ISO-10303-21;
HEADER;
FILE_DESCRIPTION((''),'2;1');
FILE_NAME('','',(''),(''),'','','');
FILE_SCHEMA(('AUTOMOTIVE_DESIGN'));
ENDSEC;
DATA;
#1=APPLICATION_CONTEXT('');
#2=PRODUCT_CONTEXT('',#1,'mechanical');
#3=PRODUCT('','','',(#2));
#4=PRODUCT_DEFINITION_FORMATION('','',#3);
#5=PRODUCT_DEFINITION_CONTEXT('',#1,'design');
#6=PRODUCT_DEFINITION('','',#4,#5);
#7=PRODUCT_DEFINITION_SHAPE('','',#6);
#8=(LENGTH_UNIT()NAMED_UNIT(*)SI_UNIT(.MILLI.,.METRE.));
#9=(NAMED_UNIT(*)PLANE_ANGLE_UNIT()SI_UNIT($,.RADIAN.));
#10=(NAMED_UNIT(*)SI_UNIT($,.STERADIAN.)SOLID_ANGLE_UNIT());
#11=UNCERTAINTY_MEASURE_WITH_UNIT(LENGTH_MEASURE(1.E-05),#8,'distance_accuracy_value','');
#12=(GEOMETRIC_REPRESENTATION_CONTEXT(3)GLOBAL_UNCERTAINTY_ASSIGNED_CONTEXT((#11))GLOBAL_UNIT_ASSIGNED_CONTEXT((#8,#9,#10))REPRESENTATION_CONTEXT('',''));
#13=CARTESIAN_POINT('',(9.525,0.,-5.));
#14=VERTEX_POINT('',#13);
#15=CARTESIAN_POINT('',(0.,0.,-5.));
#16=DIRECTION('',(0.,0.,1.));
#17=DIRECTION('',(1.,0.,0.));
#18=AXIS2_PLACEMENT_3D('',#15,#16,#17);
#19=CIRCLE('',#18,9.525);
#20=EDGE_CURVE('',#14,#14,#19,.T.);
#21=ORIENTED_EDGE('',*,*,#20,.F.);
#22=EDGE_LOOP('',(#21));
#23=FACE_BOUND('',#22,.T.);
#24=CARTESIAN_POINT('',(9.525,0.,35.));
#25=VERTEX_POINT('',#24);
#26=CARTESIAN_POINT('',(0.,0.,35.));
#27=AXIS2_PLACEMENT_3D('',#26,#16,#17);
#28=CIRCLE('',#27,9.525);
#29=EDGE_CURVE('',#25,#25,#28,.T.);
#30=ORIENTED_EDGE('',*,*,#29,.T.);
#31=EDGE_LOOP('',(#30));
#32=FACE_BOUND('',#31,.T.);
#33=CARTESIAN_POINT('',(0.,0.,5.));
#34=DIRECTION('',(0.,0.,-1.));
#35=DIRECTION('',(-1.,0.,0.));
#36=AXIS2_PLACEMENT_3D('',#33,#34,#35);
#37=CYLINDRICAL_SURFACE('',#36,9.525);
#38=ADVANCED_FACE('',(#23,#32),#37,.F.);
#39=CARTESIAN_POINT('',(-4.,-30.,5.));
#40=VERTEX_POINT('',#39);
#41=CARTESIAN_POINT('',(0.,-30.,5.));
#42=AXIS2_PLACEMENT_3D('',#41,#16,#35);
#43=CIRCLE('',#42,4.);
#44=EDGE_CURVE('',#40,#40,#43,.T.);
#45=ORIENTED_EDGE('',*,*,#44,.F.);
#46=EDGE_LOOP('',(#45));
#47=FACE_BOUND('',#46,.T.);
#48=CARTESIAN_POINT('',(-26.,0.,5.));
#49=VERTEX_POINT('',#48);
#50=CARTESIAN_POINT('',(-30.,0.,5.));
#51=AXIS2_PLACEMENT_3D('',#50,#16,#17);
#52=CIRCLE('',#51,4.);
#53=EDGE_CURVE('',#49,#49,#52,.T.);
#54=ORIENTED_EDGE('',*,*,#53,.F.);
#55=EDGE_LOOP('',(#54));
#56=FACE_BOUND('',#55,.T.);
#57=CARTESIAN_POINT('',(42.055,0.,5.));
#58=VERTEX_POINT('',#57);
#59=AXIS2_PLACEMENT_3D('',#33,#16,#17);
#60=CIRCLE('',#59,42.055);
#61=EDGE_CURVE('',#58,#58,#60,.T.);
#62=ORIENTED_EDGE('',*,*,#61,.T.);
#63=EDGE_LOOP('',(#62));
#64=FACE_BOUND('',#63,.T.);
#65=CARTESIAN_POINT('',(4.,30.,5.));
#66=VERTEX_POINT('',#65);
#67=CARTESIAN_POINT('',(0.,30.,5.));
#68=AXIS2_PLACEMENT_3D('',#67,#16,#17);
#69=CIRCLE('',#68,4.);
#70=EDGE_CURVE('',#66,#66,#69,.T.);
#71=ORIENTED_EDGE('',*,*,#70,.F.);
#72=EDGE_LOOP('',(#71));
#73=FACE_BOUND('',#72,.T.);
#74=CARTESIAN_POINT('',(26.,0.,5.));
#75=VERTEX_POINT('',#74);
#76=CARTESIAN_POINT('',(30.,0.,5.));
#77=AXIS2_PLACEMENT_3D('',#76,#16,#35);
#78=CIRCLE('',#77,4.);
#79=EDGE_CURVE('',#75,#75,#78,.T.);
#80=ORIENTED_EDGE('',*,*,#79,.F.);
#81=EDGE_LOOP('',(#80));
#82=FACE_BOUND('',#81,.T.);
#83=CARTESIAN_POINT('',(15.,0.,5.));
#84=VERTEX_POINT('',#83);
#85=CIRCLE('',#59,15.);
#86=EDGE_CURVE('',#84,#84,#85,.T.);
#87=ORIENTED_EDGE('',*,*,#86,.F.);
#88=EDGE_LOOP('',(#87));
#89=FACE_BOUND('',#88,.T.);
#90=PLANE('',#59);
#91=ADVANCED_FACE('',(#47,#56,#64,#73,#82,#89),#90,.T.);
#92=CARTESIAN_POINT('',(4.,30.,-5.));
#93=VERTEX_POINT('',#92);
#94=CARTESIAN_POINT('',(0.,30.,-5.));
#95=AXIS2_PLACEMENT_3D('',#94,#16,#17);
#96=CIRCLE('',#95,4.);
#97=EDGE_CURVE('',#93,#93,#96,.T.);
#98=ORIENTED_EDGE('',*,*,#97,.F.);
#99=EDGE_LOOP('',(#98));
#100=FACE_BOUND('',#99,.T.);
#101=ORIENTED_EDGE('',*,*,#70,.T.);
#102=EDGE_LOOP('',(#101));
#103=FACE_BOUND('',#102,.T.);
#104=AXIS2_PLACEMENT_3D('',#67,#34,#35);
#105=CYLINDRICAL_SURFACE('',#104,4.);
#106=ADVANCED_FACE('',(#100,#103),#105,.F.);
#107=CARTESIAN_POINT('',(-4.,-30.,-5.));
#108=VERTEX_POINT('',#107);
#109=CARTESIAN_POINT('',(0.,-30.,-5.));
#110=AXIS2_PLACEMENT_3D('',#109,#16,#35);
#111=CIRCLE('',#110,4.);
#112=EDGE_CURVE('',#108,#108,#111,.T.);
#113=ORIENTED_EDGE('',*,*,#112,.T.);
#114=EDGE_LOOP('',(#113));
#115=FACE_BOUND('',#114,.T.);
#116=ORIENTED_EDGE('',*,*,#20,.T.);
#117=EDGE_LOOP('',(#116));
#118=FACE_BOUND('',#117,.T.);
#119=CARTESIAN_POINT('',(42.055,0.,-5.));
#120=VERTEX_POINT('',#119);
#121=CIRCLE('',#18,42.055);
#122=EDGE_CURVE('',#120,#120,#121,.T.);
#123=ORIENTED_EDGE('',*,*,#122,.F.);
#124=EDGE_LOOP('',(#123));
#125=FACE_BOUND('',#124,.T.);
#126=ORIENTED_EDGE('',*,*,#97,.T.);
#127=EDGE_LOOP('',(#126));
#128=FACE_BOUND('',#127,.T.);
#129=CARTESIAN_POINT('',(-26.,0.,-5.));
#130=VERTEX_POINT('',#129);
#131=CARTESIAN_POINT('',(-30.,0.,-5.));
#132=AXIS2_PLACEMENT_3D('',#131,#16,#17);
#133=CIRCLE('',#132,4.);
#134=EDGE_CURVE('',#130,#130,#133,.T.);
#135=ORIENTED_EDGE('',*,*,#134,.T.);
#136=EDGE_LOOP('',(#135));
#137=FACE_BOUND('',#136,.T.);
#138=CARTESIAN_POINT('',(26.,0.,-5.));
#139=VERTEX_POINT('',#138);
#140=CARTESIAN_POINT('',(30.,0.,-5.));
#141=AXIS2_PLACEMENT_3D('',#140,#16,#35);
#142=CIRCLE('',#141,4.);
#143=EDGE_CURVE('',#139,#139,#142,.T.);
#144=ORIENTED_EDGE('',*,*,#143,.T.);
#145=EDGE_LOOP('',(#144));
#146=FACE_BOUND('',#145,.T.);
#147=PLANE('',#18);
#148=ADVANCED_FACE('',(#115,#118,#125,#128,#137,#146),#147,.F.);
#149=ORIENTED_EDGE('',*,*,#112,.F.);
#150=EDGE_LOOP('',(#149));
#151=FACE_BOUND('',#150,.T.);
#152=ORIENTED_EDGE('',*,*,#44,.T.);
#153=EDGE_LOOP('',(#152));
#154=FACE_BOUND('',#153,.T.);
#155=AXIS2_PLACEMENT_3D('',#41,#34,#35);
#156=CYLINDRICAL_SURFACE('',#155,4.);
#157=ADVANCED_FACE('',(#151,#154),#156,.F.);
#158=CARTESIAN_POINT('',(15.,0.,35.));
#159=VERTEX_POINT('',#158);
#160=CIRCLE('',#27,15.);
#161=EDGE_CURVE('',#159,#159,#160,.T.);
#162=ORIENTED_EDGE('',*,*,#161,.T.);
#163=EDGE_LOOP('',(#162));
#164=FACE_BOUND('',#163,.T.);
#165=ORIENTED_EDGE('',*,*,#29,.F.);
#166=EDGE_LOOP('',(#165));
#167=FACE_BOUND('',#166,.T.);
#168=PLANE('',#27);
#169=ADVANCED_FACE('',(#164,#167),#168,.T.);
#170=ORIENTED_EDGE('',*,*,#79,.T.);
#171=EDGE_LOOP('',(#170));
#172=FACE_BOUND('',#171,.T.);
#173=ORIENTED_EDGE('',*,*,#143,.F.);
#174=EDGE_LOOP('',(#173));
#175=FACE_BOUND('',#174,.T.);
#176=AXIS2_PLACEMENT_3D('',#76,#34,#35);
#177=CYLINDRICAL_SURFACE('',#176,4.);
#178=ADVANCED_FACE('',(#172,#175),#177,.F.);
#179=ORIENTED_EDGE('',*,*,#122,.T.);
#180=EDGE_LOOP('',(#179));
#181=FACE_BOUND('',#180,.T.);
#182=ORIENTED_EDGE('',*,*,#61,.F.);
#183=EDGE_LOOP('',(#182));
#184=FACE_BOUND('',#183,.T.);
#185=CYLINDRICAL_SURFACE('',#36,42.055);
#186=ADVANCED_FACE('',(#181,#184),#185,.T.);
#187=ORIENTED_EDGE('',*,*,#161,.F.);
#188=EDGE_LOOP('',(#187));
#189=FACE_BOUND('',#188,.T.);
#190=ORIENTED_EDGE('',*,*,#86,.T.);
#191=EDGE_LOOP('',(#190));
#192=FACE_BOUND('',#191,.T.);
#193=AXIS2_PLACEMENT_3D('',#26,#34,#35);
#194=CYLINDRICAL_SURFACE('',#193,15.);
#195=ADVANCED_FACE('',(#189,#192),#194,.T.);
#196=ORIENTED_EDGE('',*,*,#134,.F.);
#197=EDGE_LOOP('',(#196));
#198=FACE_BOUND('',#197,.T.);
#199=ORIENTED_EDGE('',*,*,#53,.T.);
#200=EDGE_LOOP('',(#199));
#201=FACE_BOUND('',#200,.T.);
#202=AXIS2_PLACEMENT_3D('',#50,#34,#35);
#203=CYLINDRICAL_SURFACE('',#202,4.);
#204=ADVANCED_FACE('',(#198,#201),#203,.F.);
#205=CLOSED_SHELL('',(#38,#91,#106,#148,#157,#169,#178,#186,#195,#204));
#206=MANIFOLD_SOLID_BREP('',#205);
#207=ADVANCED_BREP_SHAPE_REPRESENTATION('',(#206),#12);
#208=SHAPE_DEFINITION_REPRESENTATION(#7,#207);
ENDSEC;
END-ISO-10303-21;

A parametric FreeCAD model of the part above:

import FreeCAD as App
import Part
import Sketcher
Q = App.Units.Quantity

doc = App.newDocument("Part")
body = doc.addObject("PartDesign::Body", "Body")

# Sketch on XY plane
sketch1 = body.newObject("Sketcher::SketchObject", "Sketch")
sketch1.AttachmentSupport = (doc.getObject("XY_Plane"), [""])
sketch1.MapMode = "FlatFace"
sketch1.addGeometry([
    Part.Circle(App.Vector(0, 0, 0), App.Vector(0, 0, 1), 42.055),  # 0
    Part.Circle(App.Vector(0, -30, 0), App.Vector(0, 0, 1), 4),  # 1
    Part.Circle(App.Vector(-30, 0, 0), App.Vector(0, 0, 1), 4),  # 2
    Part.Circle(App.Vector(0, 0, 0), App.Vector(0, 0, 1), 9.525),  # 3
    Part.Circle(App.Vector(30, 0, 0), App.Vector(0, 0, 1), 4),  # 4
    Part.Circle(App.Vector(0, 30, 0), App.Vector(0, 0, 1), 4),  # 5
], False)
sketch1.addConstraint([
    Sketcher.Constraint("Coincident", 0, 3, -1, 1),
    Sketcher.Constraint("Coincident", 3, 3, -1, 1),
    Sketcher.Constraint("Equal", 1, 2),
    Sketcher.Constraint("Equal", 2, 4),
    Sketcher.Constraint("Equal", 4, 5),
    Sketcher.Constraint("Symmetric", 2, 3, 4, 3, -1, 1),
    Sketcher.Constraint("Symmetric", 1, 3, 5, 3, -1, 1),
    Sketcher.Constraint("PointOnObject", 1, 3, -2),
    Sketcher.Constraint("PointOnObject", 2, 3, -1),
    Sketcher.Constraint("Diameter", 1, Q("8 mm")),
    Sketcher.Constraint("Diameter", 0, Q("84.11 mm")),
    Sketcher.Constraint("Diameter", 3, Q("19.05 mm")),
    Sketcher.Constraint("DistanceY", 1, 3, -1, 1, Q("30 mm")),
    Sketcher.Constraint("DistanceX", 2, 3, -1, 1, Q("30 mm")),
])
pad1 = body.newObject("PartDesign::Pad", "Pad")
pad1.Profile = sketch1
pad1.Length = 10
pad1.Midplane = True

# Sketch on XY plane
sketch2 = body.newObject("Sketcher::SketchObject", "Sketch001")
sketch2.AttachmentSupport = (doc.getObject("XY_Plane"), [""])
sketch2.MapMode = "FlatFace"
sketch2.AttachmentOffset = App.Placement(App.Vector(0, 0, 5), App.Rotation())
sketch2.addGeometry(Part.Circle(App.Vector(0, 0, 0), App.Vector(0, 0, 1), 15), False)
sketch2.addConstraint([
    Sketcher.Constraint("Coincident", 0, 3, -1, 1),
    Sketcher.Constraint("Diameter", 0, Q("30 mm")),
])
pad2 = body.newObject("PartDesign::Pad", "Pad001")
pad2.Profile = sketch2
pad2.Length = 30

# Sketch on XY plane
sketch3 = body.newObject("Sketcher::SketchObject", "Sketch002")
sketch3.AttachmentSupport = (doc.getObject("XY_Plane"), [""])
sketch3.MapMode = "FlatFace"
sketch3.AttachmentOffset = App.Placement(App.Vector(0, 0, 35), App.Rotation())
sketch3.addGeometry(Part.Circle(App.Vector(0, 0, 0), App.Vector(0, 0, 1), 9.525), False)
sketch3.addConstraint([
    Sketcher.Constraint("Coincident", 0, 3, -1, 1),
    Sketcher.Constraint("Diameter", 0, Q("19.05 mm")),
])
pocket1 = body.newObject("PartDesign::Pocket", "Pocket")
pocket1.Profile = sketch3
pocket1.Type = "ThroughAll"

doc.recompute()
